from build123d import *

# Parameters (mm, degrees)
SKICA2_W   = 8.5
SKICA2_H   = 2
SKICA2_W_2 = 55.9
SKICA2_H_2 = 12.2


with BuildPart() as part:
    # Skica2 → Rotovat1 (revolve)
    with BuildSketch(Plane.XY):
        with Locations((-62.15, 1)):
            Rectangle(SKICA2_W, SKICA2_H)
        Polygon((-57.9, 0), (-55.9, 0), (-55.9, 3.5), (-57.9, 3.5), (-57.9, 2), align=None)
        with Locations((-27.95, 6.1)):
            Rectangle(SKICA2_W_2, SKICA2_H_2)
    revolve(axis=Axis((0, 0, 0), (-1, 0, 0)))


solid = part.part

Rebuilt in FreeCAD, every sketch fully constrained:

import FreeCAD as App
import Part
import Sketcher
from FreeCAD import Vector

doc = App.newDocument("Part")
params = doc.addObject("Spreadsheet::Sheet", "Params")
for row, (alias, value) in enumerate([
    ("sketch1_width", "2 mm"),
    ("sketch1_width2", "66.4 mm"),
    ("sketch1_width3", "55.9 mm"),
    ("sketch1_height", "12.2 mm"),
    ("sketch1_height2", "8.7 mm"),
    ("revolution_angle", "360 deg"),
], start=1):
    params.set(f"A{row}", alias)
    params.set(f"B{row}", "=" + value)
    params.setAlias(f"B{row}", alias)

body = doc.addObject("PartDesign::Body", "Body")

# Sketch on XY plane
sketch1 = body.newObject("Sketcher::SketchObject", "Sketch")
sketch1.AttachmentSupport = (doc.getObject("XY_Plane"), [""])
sketch1.MapMode = "FlatFace"
sketch1.addGeometry([
    Part.LineSegment(Vector(-66.4, 2, 0), Vector(-66.4, 0, 0)),  # 0
    Part.LineSegment(Vector(-66.4, 0, 0), Vector(0, 0, 0)),  # 1
    Part.LineSegment(Vector(0, 0, 0), Vector(0, 12.2, 0)),  # 2
    Part.LineSegment(Vector(0, 12.2, 0), Vector(-55.9, 12.2, 0)),  # 3
    Part.LineSegment(Vector(-55.9, 12.2, 0), Vector(-55.9, 3.5, 0)),  # 4
    Part.LineSegment(Vector(-55.9, 3.5, 0), Vector(-57.9, 3.5, 0)),  # 5
    Part.LineSegment(Vector(-57.9, 3.5, 0), Vector(-57.9, 2, 0)),  # 6
    Part.LineSegment(Vector(-57.9, 2, 0), Vector(-66.4, 2, 0)),  # 7
], False)
sketch1.addConstraint([
    Sketcher.Constraint("Coincident", 0, 2, 1, 1),
    Sketcher.Constraint("Coincident", 1, 2, 2, 1),
    Sketcher.Constraint("Coincident", 2, 2, 3, 1),
    Sketcher.Constraint("Coincident", 3, 2, 4, 1),
    Sketcher.Constraint("Coincident", 4, 2, 5, 1),
    Sketcher.Constraint("Coincident", 5, 2, 6, 1),
    Sketcher.Constraint("Coincident", 6, 2, 7, 1),
    Sketcher.Constraint("Coincident", 7, 2, 0, 1),
    Sketcher.Constraint("Vertical", 0),
    Sketcher.Constraint("Horizontal", 1),
    Sketcher.Constraint("Vertical", 2),
    Sketcher.Constraint("Horizontal", 3),
    Sketcher.Constraint("Vertical", 4),
    Sketcher.Constraint("Horizontal", 5),
    Sketcher.Constraint("Vertical", 6),
    Sketcher.Constraint("Horizontal", 7),
    Sketcher.Constraint("Coincident", 1, 2, -1, 1),
    Sketcher.Constraint("Equal", 5, 0),
    Sketcher.Constraint("DistanceX", 5, 2, 5, 1, 2.0),
    Sketcher.Constraint("DistanceX", 1, 1, 1, 2, 66.4),
    Sketcher.Constraint("DistanceX", 3, 2, 3, 1, 55.9),
    Sketcher.Constraint("DistanceY", 2, 1, 2, 2, 12.2),
    Sketcher.Constraint("DistanceY", 4, 2, 4, 1, 8.7),
])
sketch1.setExpression("Constraints[18]", "Params.sketch1_width")
sketch1.setExpression("Constraints[19]", "Params.sketch1_width2")
sketch1.setExpression("Constraints[20]", "Params.sketch1_width3")
sketch1.setExpression("Constraints[21]", "Params.sketch1_height")
sketch1.setExpression("Constraints[22]", "Params.sketch1_height2")
revolution = body.newObject("PartDesign::Revolution", "Revolution")
revolution.Profile = sketch1
revolution.ReferenceAxis = (sketch1, ["H_Axis"])
revolution.setExpression("Angle", "Params.revolution_angle")

doc.recompute()
